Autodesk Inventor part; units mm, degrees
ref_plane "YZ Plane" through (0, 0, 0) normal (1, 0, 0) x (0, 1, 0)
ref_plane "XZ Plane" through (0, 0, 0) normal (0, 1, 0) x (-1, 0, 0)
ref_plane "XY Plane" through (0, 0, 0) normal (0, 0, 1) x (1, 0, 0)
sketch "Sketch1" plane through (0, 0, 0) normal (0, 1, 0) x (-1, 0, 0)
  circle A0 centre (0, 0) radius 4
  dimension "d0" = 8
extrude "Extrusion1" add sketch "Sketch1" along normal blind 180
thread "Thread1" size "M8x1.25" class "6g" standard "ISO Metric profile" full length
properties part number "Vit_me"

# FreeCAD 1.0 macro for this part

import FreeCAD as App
import Part
import Sketcher

doc = App.newDocument("Part")
body = doc.addObject("PartDesign::Body", "Body")

# Sketch on XZ plane
sketch1 = body.newObject("Sketcher::SketchObject", "Sketch")
sketch1.AttachmentSupport = (doc.getObject("XZ_Plane"), [""])
sketch1.MapMode = "FlatFace"
sketch1.addGeometry(Part.Circle(App.Vector(0, 0, 0), App.Vector(0, 0, 1), 4), False)
sketch1.addConstraint([
    Sketcher.Constraint("Coincident", 0, 3, -1, 1),
    Sketcher.Constraint("Diameter", 0, 8.0),
])
pad1 = body.newObject("PartDesign::Pad", "Pad")
pad1.Profile = sketch1
pad1.Length = 180
pad1.Reversed = True

doc.recompute()
